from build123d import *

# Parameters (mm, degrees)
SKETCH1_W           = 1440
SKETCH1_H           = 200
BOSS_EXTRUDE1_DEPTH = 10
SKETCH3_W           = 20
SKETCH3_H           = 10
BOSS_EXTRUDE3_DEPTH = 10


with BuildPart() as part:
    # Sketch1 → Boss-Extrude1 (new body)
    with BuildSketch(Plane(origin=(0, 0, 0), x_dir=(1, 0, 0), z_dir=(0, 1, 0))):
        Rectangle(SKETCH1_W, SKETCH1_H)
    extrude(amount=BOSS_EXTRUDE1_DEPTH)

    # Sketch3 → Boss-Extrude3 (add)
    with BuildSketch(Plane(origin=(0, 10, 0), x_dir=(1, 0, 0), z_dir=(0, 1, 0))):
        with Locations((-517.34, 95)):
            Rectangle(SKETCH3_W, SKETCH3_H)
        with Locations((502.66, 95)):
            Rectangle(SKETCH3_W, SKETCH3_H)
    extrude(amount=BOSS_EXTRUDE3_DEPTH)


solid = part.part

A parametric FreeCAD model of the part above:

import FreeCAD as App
import Part
import Sketcher
from FreeCAD import Vector

doc = App.newDocument("Part")
body = doc.addObject("PartDesign::Body", "Body")

sketch1 = body.newObject("Sketcher::SketchObject", "Sketch")
sketch1.AttachmentSupport = (doc.getObject("XZ_Plane"), [""])
sketch1.MapMode = "FlatFace"
sketch1.addGeometry([
    Part.LineSegment(Vector(-720, -100, 0), Vector(-720, 100, 0)),
    Part.LineSegment(Vector(-720, 100, 0), Vector(720, 100, 0)),
    Part.LineSegment(Vector(720, 100, 0), Vector(720, -100, 0)),
    Part.LineSegment(Vector(720, -100, 0), Vector(-720, -100, 0)),
], False)
sketch1.addConstraint([
    Sketcher.Constraint("Coincident", 0, 2, 1, 1),
    Sketcher.Constraint("Coincident", 1, 2, 2, 1),
    Sketcher.Constraint("Coincident", 2, 2, 3, 1),
    Sketcher.Constraint("Coincident", 3, 2, 0, 1),
    Sketcher.Constraint("Vertical", 0),
    Sketcher.Constraint("Horizontal", 1),
    Sketcher.Constraint("Vertical", 2),
    Sketcher.Constraint("Horizontal", 3),
    Sketcher.Constraint("Symmetric", 0, 2, 2, 2, -1, 1),
    Sketcher.Constraint("DistanceX", 1, 1, 1, 2, 1440.0),
    Sketcher.Constraint("DistanceY", 0, 1, 0, 2, 200.0),
])
pad1 = body.newObject("PartDesign::Pad", "Pad")
pad1.Profile = sketch1
pad1.Length = 10
pad1.Reversed = True

sketch2 = body.newObject("Sketcher::SketchObject", "Sketch001")
sketch2.AttachmentSupport = (doc.getObject("XZ_Plane"), [""])
sketch2.MapMode = "FlatFace"
sketch2.AttachmentOffset = App.Placement(Vector(0, 0, -10), App.Rotation())
sketch2.addGeometry([
    Part.LineSegment(Vector(-527, -100, 0), Vector(-527, -90, 0)),
    Part.LineSegment(Vector(-527, -90, 0), Vector(-507, -90, 0)),
    Part.LineSegment(Vector(-507, -90, 0), Vector(-507, -100, 0)),
    Part.LineSegment(Vector(-507, -100, 0), Vector(-527, -100, 0)),
    Part.LineSegment(Vector(493, -100, 0), Vector(493, -90, 0)),
    Part.LineSegment(Vector(493, -90, 0), Vector(513, -90, 0)),
    Part.LineSegment(Vector(513, -90, 0), Vector(513, -100, 0)),
    Part.LineSegment(Vector(513, -100, 0), Vector(493, -100, 0)),
], False)
sketch2.addConstraint([
    Sketcher.Constraint("Coincident", 0, 2, 1, 1),
    Sketcher.Constraint("Coincident", 1, 2, 2, 1),
    Sketcher.Constraint("Coincident", 2, 2, 3, 1),
    Sketcher.Constraint("Coincident", 3, 2, 0, 1),
    Sketcher.Constraint("Coincident", 4, 2, 5, 1),
    Sketcher.Constraint("Coincident", 5, 2, 6, 1),
    Sketcher.Constraint("Coincident", 6, 2, 7, 1),
    Sketcher.Constraint("Coincident", 7, 2, 4, 1),
    Sketcher.Constraint("Vertical", 0),
    Sketcher.Constraint("Horizontal", 1),
    Sketcher.Constraint("Vertical", 2),
    Sketcher.Constraint("Horizontal", 3),
    Sketcher.Constraint("Vertical", 4),
    Sketcher.Constraint("Horizontal", 5),
    Sketcher.Constraint("Vertical", 6),
    Sketcher.Constraint("Horizontal", 7),
    Sketcher.Constraint("Horizontal", 1, 2, 4, 2),
    Sketcher.Constraint("Horizontal", 3, 2, 6, 2),
    Sketcher.Constraint("Equal", 3, 5),
    Sketcher.Constraint("DistanceX", 1, 1, 1, 2, 20.0),
    Sketcher.Constraint("DistanceY", 0, 1, 0, 2, 10.0),
    Sketcher.Constraint("DistanceY", 0, 2, -1, 1, 90.0),
    Sketcher.Constraint("DistanceX", 1, 2, 4, 2, 1000.0),
    Sketcher.Constraint("DistanceX", 0, 2, -1, 1, 527.34),
])
pad2 = body.newObject("PartDesign::Pad", "Pad001")
pad2.Profile = sketch2
pad2.Length = 10
pad2.Reversed = True

doc.recompute()
